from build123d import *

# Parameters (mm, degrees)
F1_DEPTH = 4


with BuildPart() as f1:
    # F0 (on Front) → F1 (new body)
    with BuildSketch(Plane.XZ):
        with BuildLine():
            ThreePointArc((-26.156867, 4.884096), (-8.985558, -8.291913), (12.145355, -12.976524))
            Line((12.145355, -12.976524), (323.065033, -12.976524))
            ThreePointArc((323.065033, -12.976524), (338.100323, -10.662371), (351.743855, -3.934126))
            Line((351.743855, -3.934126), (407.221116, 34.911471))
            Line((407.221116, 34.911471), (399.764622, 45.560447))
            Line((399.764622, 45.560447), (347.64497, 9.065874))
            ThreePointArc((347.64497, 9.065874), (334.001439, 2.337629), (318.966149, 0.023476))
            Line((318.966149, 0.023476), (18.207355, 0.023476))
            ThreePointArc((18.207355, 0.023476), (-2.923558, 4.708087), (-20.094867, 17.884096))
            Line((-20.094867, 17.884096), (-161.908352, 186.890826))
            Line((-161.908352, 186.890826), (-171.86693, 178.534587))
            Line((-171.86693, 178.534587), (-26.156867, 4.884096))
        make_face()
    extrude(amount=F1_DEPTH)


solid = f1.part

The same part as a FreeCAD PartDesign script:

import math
import FreeCAD as App
import Part
import Sketcher

V = App.Vector
Q = App.Units.Quantity

doc = App.newDocument("Part")
body = doc.addObject("PartDesign::Body", "Body")

# Sketch on XZ plane
sketch1 = doc.addObject("Sketcher::SketchObject", "Sketch")
body.addObject(sketch1)
sketch1.AttachmentSupport = (doc.XZ_Plane, [""])
sketch1.MapMode = "FlatFace"
sketch1.addGeometry([
    Part.ArcOfCircle(Part.Circle(V(12.145356, 37.023477, 0), V(0, 0, 1), 50.000001), math.radians(-140), math.radians(-90.000001)),  # 0
    Part.LineSegment(V(12.145355, -12.976524, 0), V(323.065033, -12.976524, 0)),  # 1
    Part.ArcOfCircle(Part.Circle(V(323.06503, 37.023486, 0), V(0, 0, 1), 50.00001), math.radians(-89.999996), math.radians(-55.000003)),  # 2
    Part.LineSegment(V(351.743855, -3.934126, 0), V(407.221116, 34.911471, 0)),  # 3
    Part.LineSegment(V(407.221116, 34.911471, 0), V(399.764622, 45.560447, 0)),  # 4
    Part.LineSegment(V(399.764622, 45.560447, 0), V(347.64497, 9.065874, 0)),  # 5
    Part.ArcOfCircle(Part.Circle(V(318.966147, 50.023479, 0), V(0, 0, 1), 50.000003), math.radians(-89.999997), math.radians(-55.000001)),  # 6
    Part.LineSegment(V(318.966149, 0.023476, 0), V(18.207355, 0.023476, 0)),  # 7
    Part.ArcOfCircle(Part.Circle(V(18.207356, 50.023477, 0), V(0, 0, 1), 50.000001), math.radians(-140), math.radians(-90.000001)),  # 8
    Part.LineSegment(V(-20.094867, 17.884096, 0), V(-161.908352, 186.890826, 0)),  # 9
    Part.LineSegment(V(-161.908352, 186.890826, 0), V(-171.86693, 178.534587, 0)),  # 10
    Part.LineSegment(V(-171.86693, 178.534587, 0), V(-26.156867, 4.884096, 0)),  # 11
], False)
sketch1.addConstraint([
    Sketcher.Constraint("Tangent", 0, 2, 1, 1),
    Sketcher.Constraint("Tangent", 1, 2, 2, 1),
    Sketcher.Constraint("Tangent", 2, 2, 3, 1),
    Sketcher.Constraint("Coincident", 3, 2, 4, 1),
    Sketcher.Constraint("Coincident", 4, 2, 5, 1),
    Sketcher.Constraint("Tangent", 5, 2, 6, 2),
    Sketcher.Constraint("Tangent", 6, 1, 7, 1),
    Sketcher.Constraint("Tangent", 7, 2, 8, 2),
    Sketcher.Constraint("Tangent", 8, 1, 9, 1),
    Sketcher.Constraint("Coincident", 9, 2, 10, 1),
    Sketcher.Constraint("Coincident", 10, 2, 11, 1),
    Sketcher.Constraint("Tangent", 11, 2, 0, 1),
    Sketcher.Constraint("Horizontal", 1),
    Sketcher.Constraint("Horizontal", 7),
    Sketcher.Constraint("Equal", 0, 8),
    Sketcher.Constraint("Perpendicular", 3, 4),
    Sketcher.Constraint("Perpendicular", 4, 5),
    Sketcher.Constraint("Perpendicular", 9, 10),
    Sketcher.Constraint("Perpendicular", 10, 11),
    Sketcher.Constraint("Equal", 4, 10),
    Sketcher.Constraint("Radius", 0, Q("50.000001 mm")),
    Sketcher.Constraint("Angle", 3, Q("35 deg")),
    Sketcher.Constraint("Angle", 9, Q("130 deg")),
    Sketcher.Constraint("Distance", 4, Q("13 mm")),
    Sketcher.Constraint("DistanceY", 0, 3, 8, 3, Q("13 mm")),
    Sketcher.Constraint("DistanceY", 2, 2, 5, 2, Q("13 mm")),
    Sketcher.Constraint("Radius", 2, Q("50.00001 mm")),
    Sketcher.Constraint("DistanceX", 1, 1, 1, 2, Q("310.919678 mm")),
    Sketcher.Constraint("Distance", 3, Q("67.725231 mm")),
    Sketcher.Constraint("DistanceX", -1, 1, 2, 3, Q("323.06503 mm")),
    Sketcher.Constraint("DistanceY", -1, 1, 6, 3, Q("50.023479 mm")),
    Sketcher.Constraint("DistanceX", 9, 2, -1, 1, Q("161.908352 mm")),
])
pad1 = doc.addObject("PartDesign::Pad", "Pad")
body.addObject(pad1)
pad1.Profile = sketch1
pad1.Length = 4

doc.recompute()
